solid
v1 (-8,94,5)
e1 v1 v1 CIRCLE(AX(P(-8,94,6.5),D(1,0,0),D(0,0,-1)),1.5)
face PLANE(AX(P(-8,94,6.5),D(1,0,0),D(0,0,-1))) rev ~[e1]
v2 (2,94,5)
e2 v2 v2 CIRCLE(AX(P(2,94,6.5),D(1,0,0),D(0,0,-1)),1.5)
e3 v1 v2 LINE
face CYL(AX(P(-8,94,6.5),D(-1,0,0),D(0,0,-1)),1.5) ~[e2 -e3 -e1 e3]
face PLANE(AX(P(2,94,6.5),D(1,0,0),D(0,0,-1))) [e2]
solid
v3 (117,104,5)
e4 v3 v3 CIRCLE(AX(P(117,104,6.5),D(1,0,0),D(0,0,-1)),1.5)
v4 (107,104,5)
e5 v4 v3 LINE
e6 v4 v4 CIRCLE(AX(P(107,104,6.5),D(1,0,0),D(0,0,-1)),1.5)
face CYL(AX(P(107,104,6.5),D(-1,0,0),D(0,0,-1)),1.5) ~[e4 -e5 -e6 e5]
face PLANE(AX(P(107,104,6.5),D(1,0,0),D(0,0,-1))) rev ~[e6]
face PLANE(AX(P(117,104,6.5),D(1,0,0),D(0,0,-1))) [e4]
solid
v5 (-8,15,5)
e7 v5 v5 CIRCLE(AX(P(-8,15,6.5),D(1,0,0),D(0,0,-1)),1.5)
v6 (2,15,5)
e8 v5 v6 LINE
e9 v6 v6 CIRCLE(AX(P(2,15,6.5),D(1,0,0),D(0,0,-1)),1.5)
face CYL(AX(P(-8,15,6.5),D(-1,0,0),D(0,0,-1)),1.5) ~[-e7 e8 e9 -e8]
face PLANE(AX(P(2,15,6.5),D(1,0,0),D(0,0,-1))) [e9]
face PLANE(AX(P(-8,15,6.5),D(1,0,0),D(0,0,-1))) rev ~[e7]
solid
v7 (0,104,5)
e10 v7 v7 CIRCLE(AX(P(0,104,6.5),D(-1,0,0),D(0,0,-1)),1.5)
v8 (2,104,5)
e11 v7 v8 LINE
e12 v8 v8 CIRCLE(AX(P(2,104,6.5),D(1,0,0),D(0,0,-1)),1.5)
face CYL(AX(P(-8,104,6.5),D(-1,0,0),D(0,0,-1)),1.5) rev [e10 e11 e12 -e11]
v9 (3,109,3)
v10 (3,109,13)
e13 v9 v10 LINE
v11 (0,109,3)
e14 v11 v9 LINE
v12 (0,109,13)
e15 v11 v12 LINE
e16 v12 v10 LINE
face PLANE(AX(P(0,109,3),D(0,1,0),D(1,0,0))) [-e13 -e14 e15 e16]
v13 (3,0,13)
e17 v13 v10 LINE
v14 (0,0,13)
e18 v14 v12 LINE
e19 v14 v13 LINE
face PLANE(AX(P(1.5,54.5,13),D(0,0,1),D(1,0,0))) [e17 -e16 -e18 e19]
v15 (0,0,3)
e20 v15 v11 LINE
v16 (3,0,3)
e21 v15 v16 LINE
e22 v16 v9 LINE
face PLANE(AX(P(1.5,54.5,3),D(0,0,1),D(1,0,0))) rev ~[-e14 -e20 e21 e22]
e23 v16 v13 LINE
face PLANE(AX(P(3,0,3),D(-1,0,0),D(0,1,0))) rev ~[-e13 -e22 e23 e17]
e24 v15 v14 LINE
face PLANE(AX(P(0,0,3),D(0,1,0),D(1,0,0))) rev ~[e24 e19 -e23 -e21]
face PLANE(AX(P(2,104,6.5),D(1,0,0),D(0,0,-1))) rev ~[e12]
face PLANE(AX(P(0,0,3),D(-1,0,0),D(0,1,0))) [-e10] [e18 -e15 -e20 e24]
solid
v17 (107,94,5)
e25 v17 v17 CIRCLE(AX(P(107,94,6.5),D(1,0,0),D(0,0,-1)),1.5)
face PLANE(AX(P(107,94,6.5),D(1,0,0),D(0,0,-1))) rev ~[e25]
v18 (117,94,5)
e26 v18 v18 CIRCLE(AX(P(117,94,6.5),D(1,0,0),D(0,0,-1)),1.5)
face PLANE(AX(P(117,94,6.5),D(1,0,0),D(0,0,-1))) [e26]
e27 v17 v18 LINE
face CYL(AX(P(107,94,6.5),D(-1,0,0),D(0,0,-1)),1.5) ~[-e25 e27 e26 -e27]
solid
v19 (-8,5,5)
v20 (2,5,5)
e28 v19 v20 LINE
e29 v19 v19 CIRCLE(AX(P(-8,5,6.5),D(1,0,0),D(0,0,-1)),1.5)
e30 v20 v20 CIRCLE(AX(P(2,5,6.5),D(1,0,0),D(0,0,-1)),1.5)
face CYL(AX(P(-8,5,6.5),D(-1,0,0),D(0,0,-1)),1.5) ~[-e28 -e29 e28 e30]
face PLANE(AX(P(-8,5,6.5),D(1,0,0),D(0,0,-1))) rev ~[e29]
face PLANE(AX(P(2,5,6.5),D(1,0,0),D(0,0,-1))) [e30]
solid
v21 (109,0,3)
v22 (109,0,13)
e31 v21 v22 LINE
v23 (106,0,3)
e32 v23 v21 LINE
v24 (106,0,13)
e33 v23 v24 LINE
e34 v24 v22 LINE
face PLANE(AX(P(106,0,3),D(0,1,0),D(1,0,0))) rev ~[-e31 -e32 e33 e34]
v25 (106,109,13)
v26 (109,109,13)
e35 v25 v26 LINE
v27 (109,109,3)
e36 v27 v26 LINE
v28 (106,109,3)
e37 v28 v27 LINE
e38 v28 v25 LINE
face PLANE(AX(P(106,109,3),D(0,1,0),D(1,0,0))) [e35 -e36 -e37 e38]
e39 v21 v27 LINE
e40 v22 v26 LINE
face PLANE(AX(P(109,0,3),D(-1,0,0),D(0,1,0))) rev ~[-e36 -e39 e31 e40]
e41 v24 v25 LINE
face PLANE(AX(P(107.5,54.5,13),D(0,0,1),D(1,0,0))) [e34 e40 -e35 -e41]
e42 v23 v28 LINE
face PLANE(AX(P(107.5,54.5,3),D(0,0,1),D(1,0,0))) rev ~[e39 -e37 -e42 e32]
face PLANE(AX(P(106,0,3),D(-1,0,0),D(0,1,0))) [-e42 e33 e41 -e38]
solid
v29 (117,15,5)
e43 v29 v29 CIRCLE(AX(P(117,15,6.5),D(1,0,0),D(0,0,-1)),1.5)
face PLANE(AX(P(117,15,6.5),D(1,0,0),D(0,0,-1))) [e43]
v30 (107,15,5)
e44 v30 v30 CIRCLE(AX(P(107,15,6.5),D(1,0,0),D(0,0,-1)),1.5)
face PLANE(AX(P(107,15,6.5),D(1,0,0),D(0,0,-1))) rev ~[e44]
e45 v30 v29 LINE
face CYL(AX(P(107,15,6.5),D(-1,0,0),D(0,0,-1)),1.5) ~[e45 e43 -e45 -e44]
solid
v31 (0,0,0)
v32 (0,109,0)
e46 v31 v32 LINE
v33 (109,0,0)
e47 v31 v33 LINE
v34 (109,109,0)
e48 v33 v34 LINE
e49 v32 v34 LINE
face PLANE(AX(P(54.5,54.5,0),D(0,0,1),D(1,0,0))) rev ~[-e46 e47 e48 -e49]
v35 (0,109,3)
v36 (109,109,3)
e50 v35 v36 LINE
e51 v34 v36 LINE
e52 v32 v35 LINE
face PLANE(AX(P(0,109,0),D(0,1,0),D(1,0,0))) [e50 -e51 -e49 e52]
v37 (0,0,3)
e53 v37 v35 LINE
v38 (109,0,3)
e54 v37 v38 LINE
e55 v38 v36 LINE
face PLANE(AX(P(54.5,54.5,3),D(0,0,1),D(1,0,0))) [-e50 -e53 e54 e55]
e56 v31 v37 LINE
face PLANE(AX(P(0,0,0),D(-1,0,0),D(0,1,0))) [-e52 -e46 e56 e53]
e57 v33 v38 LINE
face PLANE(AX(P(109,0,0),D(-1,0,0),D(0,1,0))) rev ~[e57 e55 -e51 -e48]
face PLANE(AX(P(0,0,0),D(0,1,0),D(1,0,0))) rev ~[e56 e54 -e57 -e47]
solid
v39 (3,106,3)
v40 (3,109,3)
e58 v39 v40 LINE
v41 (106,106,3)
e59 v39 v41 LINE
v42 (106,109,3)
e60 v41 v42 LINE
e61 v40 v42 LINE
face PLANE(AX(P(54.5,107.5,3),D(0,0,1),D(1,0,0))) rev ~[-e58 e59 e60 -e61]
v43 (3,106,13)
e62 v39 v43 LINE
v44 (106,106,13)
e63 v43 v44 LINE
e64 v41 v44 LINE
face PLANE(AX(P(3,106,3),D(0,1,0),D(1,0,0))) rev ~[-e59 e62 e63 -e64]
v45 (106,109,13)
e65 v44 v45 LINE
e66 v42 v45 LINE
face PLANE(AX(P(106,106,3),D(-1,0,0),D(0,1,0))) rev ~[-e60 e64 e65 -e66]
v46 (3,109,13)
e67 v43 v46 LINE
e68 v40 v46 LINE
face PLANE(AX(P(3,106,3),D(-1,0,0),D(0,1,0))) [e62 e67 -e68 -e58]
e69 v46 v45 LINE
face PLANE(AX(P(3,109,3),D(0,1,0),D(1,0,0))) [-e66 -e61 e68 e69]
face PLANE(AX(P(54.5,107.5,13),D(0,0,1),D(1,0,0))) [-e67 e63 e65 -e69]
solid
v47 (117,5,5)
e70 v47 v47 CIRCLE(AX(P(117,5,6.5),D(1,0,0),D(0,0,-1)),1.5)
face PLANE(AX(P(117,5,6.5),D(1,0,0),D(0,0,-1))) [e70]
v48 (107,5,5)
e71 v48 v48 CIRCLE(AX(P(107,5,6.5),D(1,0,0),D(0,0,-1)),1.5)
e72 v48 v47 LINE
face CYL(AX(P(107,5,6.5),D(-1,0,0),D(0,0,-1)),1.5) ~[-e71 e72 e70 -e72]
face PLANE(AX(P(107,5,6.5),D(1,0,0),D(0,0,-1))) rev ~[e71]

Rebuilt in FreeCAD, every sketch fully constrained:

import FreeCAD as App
import Part
import Sketcher
from FreeCAD import Vector
Q = App.Units.Quantity

doc = App.newDocument("Part")
body = doc.addObject("PartDesign::Body", "Body")

# Sketch on XY plane
sketch1 = body.newObject("Sketcher::SketchObject", "Sketch")
sketch1.AttachmentSupport = (doc.getObject("XY_Plane"), [""])
sketch1.MapMode = "FlatFace"
sketch1.addGeometry([
    Part.LineSegment(Vector(0, 109, 0), Vector(0, 0, 0)),
    Part.LineSegment(Vector(0, 0, 0), Vector(109, 0, 0)),
    Part.LineSegment(Vector(109, 0, 0), Vector(109, 109, 0)),
    Part.LineSegment(Vector(109, 109, 0), Vector(0, 109, 0)),
], False)
sketch1.addConstraint([
    Sketcher.Constraint("Coincident", 0, 2, 1, 1),
    Sketcher.Constraint("Coincident", 1, 2, 2, 1),
    Sketcher.Constraint("Coincident", 2, 2, 3, 1),
    Sketcher.Constraint("Coincident", 3, 2, 0, 1),
    Sketcher.Constraint("Vertical", 0),
    Sketcher.Constraint("Horizontal", 1),
    Sketcher.Constraint("Vertical", 2),
    Sketcher.Constraint("Horizontal", 3),
    Sketcher.Constraint("Coincident", 0, 2, -1, 1),
    Sketcher.Constraint("Equal", 3, 0),
    Sketcher.Constraint("DistanceX", 1, 1, 1, 2, Q("109 mm")),
])
pad1 = body.newObject("PartDesign::Pad", "Pad")
pad1.Profile = sketch1
pad1.Length = 3
body2 = doc.addObject("PartDesign::Body", "Body001")

# Sketch on XY plane
sketch2 = body2.newObject("Sketcher::SketchObject", "Sketch001")
sketch2.AttachmentSupport = (doc.getObject("XY_Plane001"), [""])
sketch2.MapMode = "FlatFace"
sketch2.AttachmentOffset = App.Placement(Vector(0, 0, 3), App.Rotation())
sketch2.addGeometry([
    Part.LineSegment(Vector(106, 109, 0), Vector(106, 0, 0)),
    Part.LineSegment(Vector(106, 0, 0), Vector(109, 0, 0)),
    Part.LineSegment(Vector(109, 0, 0), Vector(109, 109, 0)),
    Part.LineSegment(Vector(109, 109, 0), Vector(106, 109, 0)),
], False)
sketch2.addConstraint([
    Sketcher.Constraint("Coincident", 0, 2, 1, 1),
    Sketcher.Constraint("Coincident", 1, 2, 2, 1),
    Sketcher.Constraint("Coincident", 2, 2, 3, 1),
    Sketcher.Constraint("Coincident", 3, 2, 0, 1),
    Sketcher.Constraint("Vertical", 0),
    Sketcher.Constraint("Horizontal", 1),
    Sketcher.Constraint("Vertical", 2),
    Sketcher.Constraint("Horizontal", 3),
    Sketcher.Constraint("PointOnObject", 0, 2, -1),
    Sketcher.Constraint("DistanceX", 1, 1, 1, 2, Q("3 mm")),
    Sketcher.Constraint("DistanceY", 0, 2, 0, 1, Q("109 mm")),
    Sketcher.Constraint("DistanceX", -1, 1, 0, 2, Q("106 mm")),
])
pad2 = body2.newObject("PartDesign::Pad", "Pad001")
pad2.Profile = sketch2
pad2.Length = 10
body3 = doc.addObject("PartDesign::Body", "Body002")

# Sketch on XY plane
sketch3 = body3.newObject("Sketcher::SketchObject", "Sketch002")
sketch3.AttachmentSupport = (doc.getObject("XY_Plane002"), [""])
sketch3.MapMode = "FlatFace"
sketch3.AttachmentOffset = App.Placement(Vector(0, 0, 3), App.Rotation())
sketch3.addGeometry([
    Part.LineSegment(Vector(3, 109, 0), Vector(3, 106, 0)),
    Part.LineSegment(Vector(3, 106, 0), Vector(106, 106, 0)),
    Part.LineSegment(Vector(106, 106, 0), Vector(106, 109, 0)),
    Part.LineSegment(Vector(106, 109, 0), Vector(3, 109, 0)),
], False)
sketch3.addConstraint([
    Sketcher.Constraint("Coincident", 0, 2, 1, 1),
    Sketcher.Constraint("Coincident", 1, 2, 2, 1),
    Sketcher.Constraint("Coincident", 2, 2, 3, 1),
    Sketcher.Constraint("Coincident", 3, 2, 0, 1),
    Sketcher.Constraint("Vertical", 0),
    Sketcher.Constraint("Horizontal", 1),
    Sketcher.Constraint("Vertical", 2),
    Sketcher.Constraint("Horizontal", 3),
    Sketcher.Constraint("DistanceX", 1, 1, 1, 2, Q("103 mm")),
    Sketcher.Constraint("DistanceY", 0, 2, 0, 1, Q("3 mm")),
    Sketcher.Constraint("DistanceX", -1, 1, 0, 2, Q("3 mm")),
    Sketcher.Constraint("DistanceY", -1, 1, 0, 2, Q("106 mm")),
])
pad3 = body3.newObject("PartDesign::Pad", "Pad002")
pad3.Profile = sketch3
pad3.Length = 10
body4 = doc.addObject("PartDesign::Body", "Body003")

# Sketch on YZ plane
sketch4 = body4.newObject("Sketcher::SketchObject", "Sketch003")
sketch4.AttachmentSupport = (doc.getObject("YZ_Plane003"), [""])
sketch4.MapMode = "FlatFace"
sketch4.AttachmentOffset = App.Placement(Vector(0, 0, -8), App.Rotation())
sketch4.addGeometry(Part.Circle(Vector(5, 6.5, 0), Vector(0, 0, 1), 1.5), False)
sketch4.addConstraint([
    Sketcher.Constraint("Diameter", 0, Q("3 mm")),
    Sketcher.Constraint("DistanceX", -1, 1, 0, 3, Q("5 mm")),
    Sketcher.Constraint("DistanceY", -1, 1, 0, 3, Q("6.5 mm")),
])
pad4 = body4.newObject("PartDesign::Pad", "Pad003")
pad4.Profile = sketch4
pad4.Length = 10
body5 = doc.addObject("PartDesign::Body", "Body004")

# Sketch on YZ plane
sketch5 = body5.newObject("Sketcher::SketchObject", "Sketch004")
sketch5.AttachmentSupport = (doc.getObject("YZ_Plane004"), [""])
sketch5.MapMode = "FlatFace"
sketch5.AttachmentOffset = App.Placement(Vector(0, 0, -8), App.Rotation())
sketch5.addGeometry(Part.Circle(Vector(15, 6.5, 0), Vector(0, 0, 1), 1.5), False)
sketch5.addConstraint([
    Sketcher.Constraint("Diameter", 0, Q("3 mm")),
    Sketcher.Constraint("DistanceX", -1, 1, 0, 3, Q("15 mm")),
    Sketcher.Constraint("DistanceY", -1, 1, 0, 3, Q("6.5 mm")),
])
pad5 = body5.newObject("PartDesign::Pad", "Pad004")
pad5.Profile = sketch5
pad5.Length = 10
body6 = doc.addObject("PartDesign::Body", "Body005")

# Sketch on YZ plane
sketch6 = body6.newObject("Sketcher::SketchObject", "Sketch005")
sketch6.AttachmentSupport = (doc.getObject("YZ_Plane005"), [""])
sketch6.MapMode = "FlatFace"
sketch6.AttachmentOffset = App.Placement(Vector(0, 0, -8), App.Rotation())
sketch6.addGeometry(Part.Circle(Vector(94, 6.5, 0), Vector(0, 0, 1), 1.5), False)
sketch6.addConstraint([
    Sketcher.Constraint("Diameter", 0, Q("3 mm")),
    Sketcher.Constraint("DistanceX", -1, 1, 0, 3, Q("94 mm")),
    Sketcher.Constraint("DistanceY", -1, 1, 0, 3, Q("6.5 mm")),
])
pad6 = body6.newObject("PartDesign::Pad", "Pad005")
pad6.Profile = sketch6
pad6.Length = 10
body7 = doc.addObject("PartDesign::Body", "Body006")

# Sketch on YZ plane
sketch7 = body7.newObject("Sketcher::SketchObject", "Sketch006")
sketch7.AttachmentSupport = (doc.getObject("YZ_Plane006"), [""])
sketch7.MapMode = "FlatFace"
sketch7.AttachmentOffset = App.Placement(Vector(0, 0, 107), App.Rotation())
sketch7.addGeometry(Part.Circle(Vector(104, 6.5, 0), Vector(0, 0, 1), 1.5), False)
sketch7.addConstraint([
    Sketcher.Constraint("Diameter", 0, Q("3 mm")),
    Sketcher.Constraint("DistanceX", -1, 1, 0, 3, Q("104 mm")),
    Sketcher.Constraint("DistanceY", -1, 1, 0, 3, Q("6.5 mm")),
])
pad7 = body7.newObject("PartDesign::Pad", "Pad006")
pad7.Profile = sketch7
pad7.Length = 10
body8 = doc.addObject("PartDesign::Body", "Body007")

# Sketch on YZ plane
sketch8 = body8.newObject("Sketcher::SketchObject", "Sketch007")
sketch8.AttachmentSupport = (doc.getObject("YZ_Plane007"), [""])
sketch8.MapMode = "FlatFace"
sketch8.AttachmentOffset = App.Placement(Vector(0, 0, 107), App.Rotation())
sketch8.addGeometry(Part.Circle(Vector(94, 6.5, 0), Vector(0, 0, 1), 1.5), False)
sketch8.addConstraint([
    Sketcher.Constraint("Diameter", 0, Q("3 mm")),
    Sketcher.Constraint("DistanceX", -1, 1, 0, 3, Q("94 mm")),
    Sketcher.Constraint("DistanceY", -1, 1, 0, 3, Q("6.5 mm")),
])
pad8 = body8.newObject("PartDesign::Pad", "Pad007")
pad8.Profile = sketch8
pad8.Length = 10
body9 = doc.addObject("PartDesign::Body", "Body008")

# Sketch on YZ plane
sketch9 = body9.newObject("Sketcher::SketchObject", "Sketch008")
sketch9.AttachmentSupport = (doc.getObject("YZ_Plane008"), [""])
sketch9.MapMode = "FlatFace"
sketch9.AttachmentOffset = App.Placement(Vector(0, 0, 107), App.Rotation())
sketch9.addGeometry(Part.Circle(Vector(5, 6.5, 0), Vector(0, 0, 1), 1.5), False)
sketch9.addConstraint([
    Sketcher.Constraint("Diameter", 0, Q("3 mm")),
    Sketcher.Constraint("DistanceX", -1, 1, 0, 3, Q("5 mm")),
    Sketcher.Constraint("DistanceY", -1, 1, 0, 3, Q("6.5 mm")),
])
pad9 = body9.newObject("PartDesign::Pad", "Pad008")
pad9.Profile = sketch9
pad9.Length = 10
body10 = doc.addObject("PartDesign::Body", "Body009")

# Sketch on YZ plane
sketch10 = body10.newObject("Sketcher::SketchObject", "Sketch009")
sketch10.AttachmentSupport = (doc.getObject("YZ_Plane009"), [""])
sketch10.MapMode = "FlatFace"
sketch10.AttachmentOffset = App.Placement(Vector(0, 0, 107), App.Rotation())
sketch10.addGeometry(Part.Circle(Vector(15, 6.5, 0), Vector(0, 0, 1), 1.5), False)
sketch10.addConstraint([
    Sketcher.Constraint("Diameter", 0, Q("3 mm")),
    Sketcher.Constraint("DistanceX", -1, 1, 0, 3, Q("15 mm")),
    Sketcher.Constraint("DistanceY", -1, 1, 0, 3, Q("6.5 mm")),
])
pad10 = body10.newObject("PartDesign::Pad", "Pad009")
pad10.Profile = sketch10
pad10.Length = 10
body11 = doc.addObject("PartDesign::Body", "Body010")

# Sketch on YZ plane
sketch11 = body11.newObject("Sketcher::SketchObject", "Sketch010")
sketch11.AttachmentSupport = (doc.getObject("YZ_Plane010"), [""])
sketch11.MapMode = "FlatFace"
sketch11.AttachmentOffset = App.Placement(Vector(0, 0, -8), App.Rotation())
sketch11.addGeometry(Part.Circle(Vector(104, 6.5, 0), Vector(0, 0, 1), 1.5), False)
sketch11.addConstraint([
    Sketcher.Constraint("Diameter", 0, Q("3 mm")),
    Sketcher.Constraint("DistanceX", -1, 1, 0, 3, Q("104 mm")),
    Sketcher.Constraint("DistanceY", -1, 1, 0, 3, Q("6.5 mm")),
])
pad11 = body11.newObject("PartDesign::Pad", "Pad010")
pad11.Profile = sketch11
pad11.Length = 10
body12 = doc.addObject("PartDesign::Body", "Body011")

# Sketch on XY plane
sketch12 = body12.newObject("Sketcher::SketchObject", "Sketch011")
sketch12.AttachmentSupport = (doc.getObject("XY_Plane011"), [""])
sketch12.MapMode = "FlatFace"
sketch12.AttachmentOffset = App.Placement(Vector(0, 0, 3), App.Rotation())
sketch12.addGeometry([
    Part.LineSegment(Vector(0, 109, 0), Vector(0, 0, 0)),
    Part.LineSegment(Vector(0, 0, 0), Vector(3, 0, 0)),
    Part.LineSegment(Vector(3, 0, 0), Vector(3, 109, 0)),
    Part.LineSegment(Vector(3, 109, 0), Vector(0, 109, 0)),
], False)
sketch12.addConstraint([
    Sketcher.Constraint("Coincident", 0, 2, 1, 1),
    Sketcher.Constraint("Coincident", 1, 2, 2, 1),
    Sketcher.Constraint("Coincident", 2, 2, 3, 1),
    Sketcher.Constraint("Coincident", 3, 2, 0, 1),
    Sketcher.Constraint("Vertical", 0),
    Sketcher.Constraint("Horizontal", 1),
    Sketcher.Constraint("Vertical", 2),
    Sketcher.Constraint("Horizontal", 3),
    Sketcher.Constraint("Coincident", 0, 2, -1, 1),
    Sketcher.Constraint("DistanceX", 1, 1, 1, 2, Q("3 mm")),
    Sketcher.Constraint("DistanceY", 0, 2, 0, 1, Q("109 mm")),
])
pad12 = body12.newObject("PartDesign::Pad", "Pad011")
pad12.Profile = sketch12
pad12.Length = 10
doc.recompute()

boolean = body12.newObject("PartDesign::Boolean", "Boolean")
boolean.Type = "Cut"
boolean.addObjects([body11])

doc.recompute()
